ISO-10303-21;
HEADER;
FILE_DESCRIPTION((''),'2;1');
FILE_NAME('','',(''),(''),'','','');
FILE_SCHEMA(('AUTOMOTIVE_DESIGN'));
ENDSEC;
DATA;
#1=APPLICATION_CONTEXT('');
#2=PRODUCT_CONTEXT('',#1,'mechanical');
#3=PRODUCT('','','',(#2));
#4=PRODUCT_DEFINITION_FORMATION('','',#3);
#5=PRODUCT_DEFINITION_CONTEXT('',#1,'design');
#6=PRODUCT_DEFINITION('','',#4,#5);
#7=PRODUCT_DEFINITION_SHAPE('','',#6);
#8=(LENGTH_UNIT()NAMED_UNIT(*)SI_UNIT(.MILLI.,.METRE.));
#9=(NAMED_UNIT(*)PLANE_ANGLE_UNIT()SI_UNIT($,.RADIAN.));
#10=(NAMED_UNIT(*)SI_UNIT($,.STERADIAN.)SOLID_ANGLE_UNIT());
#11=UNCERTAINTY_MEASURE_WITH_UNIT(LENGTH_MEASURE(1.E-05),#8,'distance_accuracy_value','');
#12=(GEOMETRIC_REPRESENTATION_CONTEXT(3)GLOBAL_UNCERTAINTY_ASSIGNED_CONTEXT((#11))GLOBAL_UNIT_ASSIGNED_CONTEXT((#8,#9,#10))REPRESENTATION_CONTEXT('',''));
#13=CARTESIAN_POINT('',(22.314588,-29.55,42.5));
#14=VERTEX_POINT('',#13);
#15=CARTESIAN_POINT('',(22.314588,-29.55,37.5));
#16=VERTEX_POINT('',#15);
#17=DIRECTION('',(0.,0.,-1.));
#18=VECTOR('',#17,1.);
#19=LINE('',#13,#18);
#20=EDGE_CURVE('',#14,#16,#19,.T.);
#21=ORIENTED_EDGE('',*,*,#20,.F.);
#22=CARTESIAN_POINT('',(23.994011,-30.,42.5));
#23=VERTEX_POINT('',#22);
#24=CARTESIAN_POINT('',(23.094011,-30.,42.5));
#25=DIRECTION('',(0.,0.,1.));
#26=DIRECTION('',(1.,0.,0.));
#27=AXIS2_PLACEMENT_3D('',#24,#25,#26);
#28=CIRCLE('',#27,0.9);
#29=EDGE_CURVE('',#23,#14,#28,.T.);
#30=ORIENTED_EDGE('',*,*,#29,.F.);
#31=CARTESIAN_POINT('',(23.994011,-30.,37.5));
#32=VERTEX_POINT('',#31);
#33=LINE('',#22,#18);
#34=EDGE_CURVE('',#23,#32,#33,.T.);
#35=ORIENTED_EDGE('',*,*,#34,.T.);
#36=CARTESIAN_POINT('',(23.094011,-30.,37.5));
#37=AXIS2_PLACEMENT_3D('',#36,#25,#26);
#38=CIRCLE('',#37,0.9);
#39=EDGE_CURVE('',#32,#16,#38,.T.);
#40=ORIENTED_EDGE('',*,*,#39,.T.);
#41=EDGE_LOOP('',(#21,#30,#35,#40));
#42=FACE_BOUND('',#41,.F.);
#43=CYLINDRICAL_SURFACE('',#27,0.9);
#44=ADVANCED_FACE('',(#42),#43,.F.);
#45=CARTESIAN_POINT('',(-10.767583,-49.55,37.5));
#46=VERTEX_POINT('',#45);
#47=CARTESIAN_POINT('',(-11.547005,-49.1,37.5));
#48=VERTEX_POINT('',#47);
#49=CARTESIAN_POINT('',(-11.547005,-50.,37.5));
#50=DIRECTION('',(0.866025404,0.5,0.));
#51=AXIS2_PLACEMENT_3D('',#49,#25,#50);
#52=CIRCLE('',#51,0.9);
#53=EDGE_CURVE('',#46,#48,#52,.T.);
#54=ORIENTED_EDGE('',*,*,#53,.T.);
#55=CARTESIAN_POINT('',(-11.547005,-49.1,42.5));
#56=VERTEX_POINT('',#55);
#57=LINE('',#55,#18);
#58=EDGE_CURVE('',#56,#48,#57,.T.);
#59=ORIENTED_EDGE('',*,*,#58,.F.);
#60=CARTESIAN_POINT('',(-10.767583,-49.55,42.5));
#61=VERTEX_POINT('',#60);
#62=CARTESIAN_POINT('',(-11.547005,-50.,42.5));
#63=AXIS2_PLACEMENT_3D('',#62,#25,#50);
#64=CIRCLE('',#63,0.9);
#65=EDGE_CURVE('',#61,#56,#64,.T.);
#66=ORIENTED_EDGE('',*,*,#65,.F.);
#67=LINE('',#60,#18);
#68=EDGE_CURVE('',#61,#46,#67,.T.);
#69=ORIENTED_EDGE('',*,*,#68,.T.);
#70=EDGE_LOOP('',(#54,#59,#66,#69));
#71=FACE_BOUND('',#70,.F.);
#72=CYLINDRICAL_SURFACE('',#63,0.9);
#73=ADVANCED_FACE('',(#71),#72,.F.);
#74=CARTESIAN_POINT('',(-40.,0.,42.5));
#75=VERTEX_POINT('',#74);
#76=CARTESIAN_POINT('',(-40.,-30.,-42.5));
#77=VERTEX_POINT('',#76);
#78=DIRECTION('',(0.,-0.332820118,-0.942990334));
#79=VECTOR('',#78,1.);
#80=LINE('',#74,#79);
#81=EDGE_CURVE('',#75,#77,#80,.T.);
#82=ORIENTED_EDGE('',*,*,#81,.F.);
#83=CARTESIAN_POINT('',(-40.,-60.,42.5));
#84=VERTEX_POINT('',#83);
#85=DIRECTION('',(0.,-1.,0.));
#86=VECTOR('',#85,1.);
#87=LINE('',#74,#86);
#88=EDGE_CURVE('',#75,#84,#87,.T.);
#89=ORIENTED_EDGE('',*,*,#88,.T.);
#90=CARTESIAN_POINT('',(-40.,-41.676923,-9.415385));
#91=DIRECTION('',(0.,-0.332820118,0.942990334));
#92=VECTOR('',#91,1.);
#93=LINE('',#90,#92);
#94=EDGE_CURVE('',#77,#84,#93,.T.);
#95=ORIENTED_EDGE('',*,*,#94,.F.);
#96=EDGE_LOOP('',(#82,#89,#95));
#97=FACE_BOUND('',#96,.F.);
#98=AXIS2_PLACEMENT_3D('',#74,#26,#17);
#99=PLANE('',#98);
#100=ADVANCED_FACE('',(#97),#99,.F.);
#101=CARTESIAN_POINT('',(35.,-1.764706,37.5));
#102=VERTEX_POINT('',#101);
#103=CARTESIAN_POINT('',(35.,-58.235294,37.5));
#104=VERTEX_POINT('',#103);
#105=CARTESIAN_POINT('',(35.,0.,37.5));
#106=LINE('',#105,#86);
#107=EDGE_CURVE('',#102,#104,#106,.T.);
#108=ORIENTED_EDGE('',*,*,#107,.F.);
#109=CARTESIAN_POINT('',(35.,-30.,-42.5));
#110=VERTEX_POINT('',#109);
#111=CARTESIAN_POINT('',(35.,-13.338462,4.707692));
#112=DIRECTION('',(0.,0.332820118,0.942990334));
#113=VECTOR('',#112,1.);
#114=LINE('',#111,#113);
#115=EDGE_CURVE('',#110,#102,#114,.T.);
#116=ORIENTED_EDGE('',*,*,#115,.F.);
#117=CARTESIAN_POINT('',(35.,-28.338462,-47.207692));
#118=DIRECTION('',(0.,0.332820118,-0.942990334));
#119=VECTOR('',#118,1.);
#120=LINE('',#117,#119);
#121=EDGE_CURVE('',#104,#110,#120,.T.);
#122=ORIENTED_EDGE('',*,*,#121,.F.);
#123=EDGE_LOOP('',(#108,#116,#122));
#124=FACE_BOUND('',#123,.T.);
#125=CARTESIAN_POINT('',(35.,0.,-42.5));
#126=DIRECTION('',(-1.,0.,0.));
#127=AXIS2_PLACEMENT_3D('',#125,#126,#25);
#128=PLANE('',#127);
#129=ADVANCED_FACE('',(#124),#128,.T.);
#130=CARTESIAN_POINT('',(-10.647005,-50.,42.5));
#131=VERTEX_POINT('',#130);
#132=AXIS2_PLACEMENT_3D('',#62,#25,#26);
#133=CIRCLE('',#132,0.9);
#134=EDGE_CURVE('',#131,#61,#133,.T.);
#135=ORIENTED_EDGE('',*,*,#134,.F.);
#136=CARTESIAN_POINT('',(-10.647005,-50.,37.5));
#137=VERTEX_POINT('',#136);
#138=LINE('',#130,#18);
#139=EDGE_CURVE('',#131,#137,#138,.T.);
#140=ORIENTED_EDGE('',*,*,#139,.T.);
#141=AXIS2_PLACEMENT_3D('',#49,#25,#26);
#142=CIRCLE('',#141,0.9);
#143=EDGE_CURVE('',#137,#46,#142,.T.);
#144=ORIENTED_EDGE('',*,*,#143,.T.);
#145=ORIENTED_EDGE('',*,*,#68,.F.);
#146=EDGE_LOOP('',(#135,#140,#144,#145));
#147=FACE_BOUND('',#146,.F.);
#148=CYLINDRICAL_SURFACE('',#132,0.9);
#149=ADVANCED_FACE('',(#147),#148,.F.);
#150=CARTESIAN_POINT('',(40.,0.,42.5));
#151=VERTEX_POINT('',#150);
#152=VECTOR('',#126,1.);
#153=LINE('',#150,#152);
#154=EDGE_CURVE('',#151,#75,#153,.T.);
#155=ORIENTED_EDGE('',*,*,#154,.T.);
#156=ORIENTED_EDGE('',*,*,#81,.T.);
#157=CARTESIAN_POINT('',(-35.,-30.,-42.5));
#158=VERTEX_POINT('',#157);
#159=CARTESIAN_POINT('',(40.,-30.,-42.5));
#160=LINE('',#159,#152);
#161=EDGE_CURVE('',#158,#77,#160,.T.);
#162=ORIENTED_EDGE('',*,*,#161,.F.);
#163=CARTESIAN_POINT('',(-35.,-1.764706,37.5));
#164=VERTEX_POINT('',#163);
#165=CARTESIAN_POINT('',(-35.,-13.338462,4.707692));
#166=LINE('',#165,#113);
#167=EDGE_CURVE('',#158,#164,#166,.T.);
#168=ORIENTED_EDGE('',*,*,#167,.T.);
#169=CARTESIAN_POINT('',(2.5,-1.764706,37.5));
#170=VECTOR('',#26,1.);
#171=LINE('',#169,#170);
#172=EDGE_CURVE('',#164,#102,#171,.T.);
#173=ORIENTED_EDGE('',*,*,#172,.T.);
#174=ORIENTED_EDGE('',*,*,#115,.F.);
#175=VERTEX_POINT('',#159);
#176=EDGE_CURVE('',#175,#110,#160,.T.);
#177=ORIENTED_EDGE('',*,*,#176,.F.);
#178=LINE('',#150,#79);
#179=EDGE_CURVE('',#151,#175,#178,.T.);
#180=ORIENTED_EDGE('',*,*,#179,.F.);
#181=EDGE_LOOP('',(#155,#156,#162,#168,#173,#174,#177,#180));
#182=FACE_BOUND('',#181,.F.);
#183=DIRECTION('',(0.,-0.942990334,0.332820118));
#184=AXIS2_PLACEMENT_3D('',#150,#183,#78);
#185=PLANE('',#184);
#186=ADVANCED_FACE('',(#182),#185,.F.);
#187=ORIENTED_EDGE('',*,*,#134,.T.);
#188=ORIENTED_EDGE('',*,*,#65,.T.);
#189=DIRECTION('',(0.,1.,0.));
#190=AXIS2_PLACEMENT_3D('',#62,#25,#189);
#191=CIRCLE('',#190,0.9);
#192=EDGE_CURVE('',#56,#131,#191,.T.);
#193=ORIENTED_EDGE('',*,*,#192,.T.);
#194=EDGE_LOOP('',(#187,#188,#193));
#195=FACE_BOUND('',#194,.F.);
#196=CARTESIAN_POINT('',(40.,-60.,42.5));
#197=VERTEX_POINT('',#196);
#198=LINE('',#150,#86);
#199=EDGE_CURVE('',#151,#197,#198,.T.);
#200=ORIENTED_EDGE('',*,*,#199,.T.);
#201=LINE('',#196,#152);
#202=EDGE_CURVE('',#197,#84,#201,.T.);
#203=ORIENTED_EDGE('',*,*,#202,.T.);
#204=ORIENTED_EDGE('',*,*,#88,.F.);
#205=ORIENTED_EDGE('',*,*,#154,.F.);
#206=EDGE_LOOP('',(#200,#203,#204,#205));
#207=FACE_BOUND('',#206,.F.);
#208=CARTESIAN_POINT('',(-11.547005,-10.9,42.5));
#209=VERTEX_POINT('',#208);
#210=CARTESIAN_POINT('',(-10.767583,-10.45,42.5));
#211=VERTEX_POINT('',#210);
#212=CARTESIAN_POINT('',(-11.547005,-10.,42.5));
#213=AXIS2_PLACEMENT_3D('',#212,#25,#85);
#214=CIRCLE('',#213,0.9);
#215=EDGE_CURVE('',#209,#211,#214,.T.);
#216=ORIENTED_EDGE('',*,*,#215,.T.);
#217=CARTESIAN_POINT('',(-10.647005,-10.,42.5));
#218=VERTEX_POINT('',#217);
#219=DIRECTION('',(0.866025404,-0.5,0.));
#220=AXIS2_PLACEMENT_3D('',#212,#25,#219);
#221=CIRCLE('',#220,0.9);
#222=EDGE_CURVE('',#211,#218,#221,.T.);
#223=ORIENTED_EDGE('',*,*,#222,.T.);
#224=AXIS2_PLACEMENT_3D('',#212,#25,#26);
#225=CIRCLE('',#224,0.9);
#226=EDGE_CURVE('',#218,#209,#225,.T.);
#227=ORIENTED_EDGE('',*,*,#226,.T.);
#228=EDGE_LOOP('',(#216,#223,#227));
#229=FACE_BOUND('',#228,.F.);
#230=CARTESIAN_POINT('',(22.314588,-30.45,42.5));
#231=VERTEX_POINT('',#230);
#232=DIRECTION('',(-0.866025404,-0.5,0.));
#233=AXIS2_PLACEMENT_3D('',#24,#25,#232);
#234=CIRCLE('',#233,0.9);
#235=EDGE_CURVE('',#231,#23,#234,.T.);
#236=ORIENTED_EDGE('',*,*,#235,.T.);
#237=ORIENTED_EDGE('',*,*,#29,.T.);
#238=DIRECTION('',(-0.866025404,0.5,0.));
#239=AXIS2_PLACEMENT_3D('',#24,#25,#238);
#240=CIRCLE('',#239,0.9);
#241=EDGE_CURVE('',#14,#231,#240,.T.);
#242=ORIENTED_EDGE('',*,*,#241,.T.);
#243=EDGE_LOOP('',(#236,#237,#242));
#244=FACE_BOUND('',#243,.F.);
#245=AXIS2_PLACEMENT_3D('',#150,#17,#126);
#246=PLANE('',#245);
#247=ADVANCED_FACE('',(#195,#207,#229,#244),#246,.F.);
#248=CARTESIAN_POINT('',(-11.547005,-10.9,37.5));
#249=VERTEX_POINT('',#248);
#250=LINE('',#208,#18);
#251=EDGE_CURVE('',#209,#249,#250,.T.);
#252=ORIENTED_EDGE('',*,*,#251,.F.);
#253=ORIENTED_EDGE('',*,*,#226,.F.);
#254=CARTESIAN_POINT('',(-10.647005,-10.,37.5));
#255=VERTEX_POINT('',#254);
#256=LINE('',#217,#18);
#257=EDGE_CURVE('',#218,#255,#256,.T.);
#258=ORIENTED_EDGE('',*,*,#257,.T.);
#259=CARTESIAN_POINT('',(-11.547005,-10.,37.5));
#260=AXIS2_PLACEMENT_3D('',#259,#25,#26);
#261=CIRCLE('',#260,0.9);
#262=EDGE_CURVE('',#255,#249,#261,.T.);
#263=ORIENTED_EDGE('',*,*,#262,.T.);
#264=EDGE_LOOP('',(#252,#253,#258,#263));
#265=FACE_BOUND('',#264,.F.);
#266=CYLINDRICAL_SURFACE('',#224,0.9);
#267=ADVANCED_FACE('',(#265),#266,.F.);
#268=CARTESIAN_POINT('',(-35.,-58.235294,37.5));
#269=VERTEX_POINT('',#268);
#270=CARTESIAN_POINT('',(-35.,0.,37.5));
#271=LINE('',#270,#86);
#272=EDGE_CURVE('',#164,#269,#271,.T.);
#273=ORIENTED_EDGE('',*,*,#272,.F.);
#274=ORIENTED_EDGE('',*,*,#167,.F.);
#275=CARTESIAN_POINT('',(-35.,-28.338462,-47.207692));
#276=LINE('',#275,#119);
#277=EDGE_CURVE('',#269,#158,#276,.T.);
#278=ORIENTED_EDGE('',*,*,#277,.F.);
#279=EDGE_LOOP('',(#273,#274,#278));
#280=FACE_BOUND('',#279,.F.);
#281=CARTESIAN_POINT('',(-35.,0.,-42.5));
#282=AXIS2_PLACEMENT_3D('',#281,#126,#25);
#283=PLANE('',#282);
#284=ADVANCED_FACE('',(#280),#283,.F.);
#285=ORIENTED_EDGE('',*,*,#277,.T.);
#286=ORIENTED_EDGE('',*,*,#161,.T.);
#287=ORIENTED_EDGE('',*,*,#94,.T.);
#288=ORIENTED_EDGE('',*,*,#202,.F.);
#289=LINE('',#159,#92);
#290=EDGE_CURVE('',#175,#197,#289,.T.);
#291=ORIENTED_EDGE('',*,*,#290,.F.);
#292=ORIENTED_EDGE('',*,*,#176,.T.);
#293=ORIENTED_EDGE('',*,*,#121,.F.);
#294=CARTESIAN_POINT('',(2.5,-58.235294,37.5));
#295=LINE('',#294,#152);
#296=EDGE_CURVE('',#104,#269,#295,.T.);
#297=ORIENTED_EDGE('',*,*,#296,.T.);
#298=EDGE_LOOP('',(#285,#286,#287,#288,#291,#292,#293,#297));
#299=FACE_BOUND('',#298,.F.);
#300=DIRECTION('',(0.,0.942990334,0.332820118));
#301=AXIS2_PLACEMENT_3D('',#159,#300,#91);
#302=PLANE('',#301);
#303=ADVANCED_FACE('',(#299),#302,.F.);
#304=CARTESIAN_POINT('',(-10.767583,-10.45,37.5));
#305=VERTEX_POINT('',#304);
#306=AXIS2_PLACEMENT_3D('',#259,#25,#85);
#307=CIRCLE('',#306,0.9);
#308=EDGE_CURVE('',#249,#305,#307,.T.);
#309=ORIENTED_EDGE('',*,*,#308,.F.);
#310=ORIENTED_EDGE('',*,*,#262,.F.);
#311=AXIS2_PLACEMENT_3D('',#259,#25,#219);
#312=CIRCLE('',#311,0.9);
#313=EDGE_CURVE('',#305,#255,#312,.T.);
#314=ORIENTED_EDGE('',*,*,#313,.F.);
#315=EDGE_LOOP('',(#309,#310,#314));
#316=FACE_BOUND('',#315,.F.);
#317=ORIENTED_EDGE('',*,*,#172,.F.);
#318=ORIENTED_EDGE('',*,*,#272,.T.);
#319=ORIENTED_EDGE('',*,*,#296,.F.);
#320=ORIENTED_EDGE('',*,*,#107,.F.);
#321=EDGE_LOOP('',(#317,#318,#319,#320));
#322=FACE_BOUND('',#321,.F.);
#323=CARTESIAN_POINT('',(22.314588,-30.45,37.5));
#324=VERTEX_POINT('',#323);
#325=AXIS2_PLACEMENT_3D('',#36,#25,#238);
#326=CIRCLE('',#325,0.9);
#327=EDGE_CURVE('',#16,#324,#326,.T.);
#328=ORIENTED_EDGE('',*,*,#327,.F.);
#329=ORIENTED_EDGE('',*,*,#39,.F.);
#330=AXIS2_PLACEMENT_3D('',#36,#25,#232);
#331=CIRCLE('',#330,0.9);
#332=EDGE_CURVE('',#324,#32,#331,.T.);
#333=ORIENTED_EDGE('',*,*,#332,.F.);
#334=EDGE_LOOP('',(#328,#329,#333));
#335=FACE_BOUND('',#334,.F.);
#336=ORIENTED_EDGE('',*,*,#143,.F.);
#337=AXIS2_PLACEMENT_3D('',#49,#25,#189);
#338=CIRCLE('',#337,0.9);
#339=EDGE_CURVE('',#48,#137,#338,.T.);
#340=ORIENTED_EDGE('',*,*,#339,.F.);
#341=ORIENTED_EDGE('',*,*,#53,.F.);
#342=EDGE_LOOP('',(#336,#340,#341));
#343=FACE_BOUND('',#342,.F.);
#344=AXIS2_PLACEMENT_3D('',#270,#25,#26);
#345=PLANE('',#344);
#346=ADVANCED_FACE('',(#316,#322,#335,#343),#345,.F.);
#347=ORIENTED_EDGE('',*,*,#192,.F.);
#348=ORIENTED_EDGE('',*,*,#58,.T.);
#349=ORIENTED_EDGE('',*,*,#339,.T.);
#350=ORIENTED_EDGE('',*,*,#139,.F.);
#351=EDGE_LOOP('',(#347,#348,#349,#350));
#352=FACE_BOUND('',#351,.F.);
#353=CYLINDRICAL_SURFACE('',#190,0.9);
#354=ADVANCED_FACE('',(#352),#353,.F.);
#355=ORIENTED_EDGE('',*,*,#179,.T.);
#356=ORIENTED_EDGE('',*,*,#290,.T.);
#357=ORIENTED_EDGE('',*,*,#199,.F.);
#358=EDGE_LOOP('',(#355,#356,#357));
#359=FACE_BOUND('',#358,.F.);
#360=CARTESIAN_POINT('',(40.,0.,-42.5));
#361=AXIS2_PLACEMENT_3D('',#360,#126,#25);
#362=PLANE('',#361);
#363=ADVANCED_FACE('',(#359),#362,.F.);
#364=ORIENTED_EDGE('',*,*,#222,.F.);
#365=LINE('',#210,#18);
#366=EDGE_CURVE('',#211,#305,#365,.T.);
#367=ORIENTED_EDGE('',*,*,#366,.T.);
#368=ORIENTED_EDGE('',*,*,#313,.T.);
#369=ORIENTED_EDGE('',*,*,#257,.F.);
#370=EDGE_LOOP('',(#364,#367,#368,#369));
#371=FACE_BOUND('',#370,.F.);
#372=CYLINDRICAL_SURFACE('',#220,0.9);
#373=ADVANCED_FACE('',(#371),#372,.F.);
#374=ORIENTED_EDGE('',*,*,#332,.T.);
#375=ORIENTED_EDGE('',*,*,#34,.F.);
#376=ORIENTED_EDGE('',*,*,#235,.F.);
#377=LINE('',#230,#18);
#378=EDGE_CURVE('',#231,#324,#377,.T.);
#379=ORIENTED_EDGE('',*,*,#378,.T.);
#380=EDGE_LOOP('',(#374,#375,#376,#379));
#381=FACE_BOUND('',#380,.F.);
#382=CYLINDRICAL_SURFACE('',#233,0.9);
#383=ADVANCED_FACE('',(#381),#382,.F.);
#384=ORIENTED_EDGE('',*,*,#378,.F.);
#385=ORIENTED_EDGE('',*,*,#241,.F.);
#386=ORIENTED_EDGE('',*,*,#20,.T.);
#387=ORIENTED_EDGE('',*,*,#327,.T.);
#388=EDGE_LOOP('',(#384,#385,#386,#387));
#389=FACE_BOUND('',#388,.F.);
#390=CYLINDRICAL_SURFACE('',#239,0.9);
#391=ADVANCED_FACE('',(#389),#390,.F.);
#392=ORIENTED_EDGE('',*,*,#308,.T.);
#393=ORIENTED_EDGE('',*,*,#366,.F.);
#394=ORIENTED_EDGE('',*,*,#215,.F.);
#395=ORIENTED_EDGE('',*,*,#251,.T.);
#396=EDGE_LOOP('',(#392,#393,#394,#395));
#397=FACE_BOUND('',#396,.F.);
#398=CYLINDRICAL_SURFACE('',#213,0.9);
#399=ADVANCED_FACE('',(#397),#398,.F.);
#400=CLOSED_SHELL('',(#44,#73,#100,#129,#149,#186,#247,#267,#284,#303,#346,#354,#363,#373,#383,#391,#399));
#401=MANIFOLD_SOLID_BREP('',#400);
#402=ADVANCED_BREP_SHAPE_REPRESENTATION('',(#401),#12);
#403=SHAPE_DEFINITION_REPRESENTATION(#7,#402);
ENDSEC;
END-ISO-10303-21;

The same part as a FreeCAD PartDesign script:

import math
import FreeCAD as App
import Part
import Sketcher
Q = App.Units.Quantity

doc = App.newDocument("Part")
body = doc.addObject("PartDesign::Body", "Body")

sketch1 = body.newObject("Sketcher::SketchObject", "Sketch")
sketch1.AttachmentSupport = (doc.getObject("XZ_Plane"), [""])
sketch1.MapMode = "FlatFace"
sketch1.addGeometry([
    Part.LineSegment(App.Vector(-40, -42, 0), App.Vector(-35, -42, 0)),
    Part.LineSegment(App.Vector(-35, -42, 0), App.Vector(-35, 38, 0)),
    Part.LineSegment(App.Vector(-35, 38, 0), App.Vector(35, 38, 0)),
    Part.LineSegment(App.Vector(35, 38, 0), App.Vector(35, -42, 0)),
    Part.LineSegment(App.Vector(35, -42, 0), App.Vector(40, -42, 0)),
    Part.LineSegment(App.Vector(40, -42, 0), App.Vector(40, 42, 0)),
    Part.LineSegment(App.Vector(40, 42, 0), App.Vector(-40, 42, 0)),
    Part.LineSegment(App.Vector(-40, 42, 0), App.Vector(-40, -42, 0)),
], False)
sketch1.addConstraint([
    Sketcher.Constraint("Coincident", 0, 2, 1, 1),
    Sketcher.Constraint("Coincident", 1, 2, 2, 1),
    Sketcher.Constraint("Coincident", 2, 2, 3, 1),
    Sketcher.Constraint("Coincident", 3, 2, 4, 1),
    Sketcher.Constraint("Coincident", 4, 2, 5, 1),
    Sketcher.Constraint("Coincident", 5, 2, 6, 1),
    Sketcher.Constraint("Coincident", 6, 2, 7, 1),
    Sketcher.Constraint("Coincident", 7, 2, 0, 1),
    Sketcher.Constraint("Horizontal", 0),
    Sketcher.Constraint("Vertical", 1),
    Sketcher.Constraint("Horizontal", 2),
    Sketcher.Constraint("Vertical", 3),
    Sketcher.Constraint("Horizontal", 4),
    Sketcher.Constraint("Vertical", 5),
    Sketcher.Constraint("Horizontal", 6),
    Sketcher.Constraint("Vertical", 7),
    Sketcher.Constraint("Symmetric", 4, 2, 6, 2, -1, 1),
    Sketcher.Constraint("Symmetric", 0, 2, 3, 2, -2),
    Sketcher.Constraint("Equal", 6, 1),
    Sketcher.Constraint("DistanceX", 0, 1, 0, 2, Q("5 mm")),
    Sketcher.Constraint("DistanceX", 2, 1, 2, 2, Q("70 mm")),
    Sketcher.Constraint("DistanceY", 5, 1, 5, 2, Q("85 mm")),
])
pad1 = body.newObject("PartDesign::Pad", "Pad")
pad1.Profile = sketch1
pad1.Length = 60

sketch2 = body.newObject("Sketcher::SketchObject", "Sketch001")
sketch2.AttachmentSupport = (doc.getObject("XY_Plane"), [""])
sketch2.MapMode = "FlatFace"
sketch2.AttachmentOffset = App.Placement(App.Vector(0, 0, 42.5), App.Rotation())
sketch2.addGeometry([
    Part.ArcOfCircle(Part.Circle(App.Vector(23.09, -30, 0), App.Vector(0, 0, 1), 0.9), math.radians(-150), math.radians(0)),
    Part.ArcOfCircle(Part.Circle(App.Vector(23.09, -30, 0), App.Vector(0, 0, 1), 0.9), math.radians(0), math.radians(150)),
    Part.ArcOfCircle(Part.Circle(App.Vector(23.09, -30, 0), App.Vector(0, 0, 1), 0.9), math.radians(150), math.radians(210)),
    Part.ArcOfCircle(Part.Circle(App.Vector(-11.55, -10, 0), App.Vector(0, 0, 1), 0.9), math.radians(-90), math.radians(-30)),
    Part.ArcOfCircle(Part.Circle(App.Vector(-11.55, -10, 0), App.Vector(0, 0, 1), 0.9), math.radians(-30), math.radians(0)),
    Part.ArcOfCircle(Part.Circle(App.Vector(-11.55, -10, 0), App.Vector(0, 0, 1), 0.9), math.radians(0), math.radians(270)),
    Part.ArcOfCircle(Part.Circle(App.Vector(-11.55, -50, 0), App.Vector(0, 0, 1), 0.9), math.radians(30), math.radians(90)),
    Part.ArcOfCircle(Part.Circle(App.Vector(-11.55, -50, 0), App.Vector(0, 0, 1), 0.9), math.radians(90), math.radians(360)),
    Part.ArcOfCircle(Part.Circle(App.Vector(-11.55, -50, 0), App.Vector(0, 0, 1), 0.9), math.radians(0), math.radians(30)),
], False)
sketch2.addConstraint([
    Sketcher.Constraint("Tangent", 0, 2, 1, 1),
    Sketcher.Constraint("Tangent", 1, 2, 2, 1),
    Sketcher.Constraint("Tangent", 2, 2, 0, 1),
    Sketcher.Constraint("Tangent", 3, 2, 4, 1),
    Sketcher.Constraint("Tangent", 4, 2, 5, 1),
    Sketcher.Constraint("Tangent", 5, 2, 3, 1),
    Sketcher.Constraint("Tangent", 6, 2, 7, 1),
    Sketcher.Constraint("Tangent", 7, 2, 8, 1),
    Sketcher.Constraint("Tangent", 8, 2, 6, 1),
    Sketcher.Constraint("Equal", 2, 3),
    Sketcher.Constraint("Equal", 5, 6),
    Sketcher.Constraint("Horizontal", 2, 3, 0, 2),
    Sketcher.Constraint("Horizontal", 5, 3, 4, 2),
    Sketcher.Constraint("Horizontal", 8, 3, 7, 2),
    Sketcher.Constraint("Vertical", 5, 3, 6, 3),
    Sketcher.Constraint("Vertical", 1, 2, 2, 2),
    Sketcher.Constraint("Vertical", 8, 3, 5, 2),
    Sketcher.Constraint("Vertical", 5, 2, 6, 2),
    Sketcher.Constraint("Vertical", 3, 2, 8, 2),
    Sketcher.Constraint("Radius", 0, Q("0.9 mm")),
    Sketcher.Constraint("DistanceY", 0, 3, -1, 1, Q("30 mm")),
    Sketcher.Constraint("DistanceY", 3, 3, -1, 1, Q("10 mm")),
    Sketcher.Constraint("DistanceY", 6, 3, -1, 1, Q("50 mm")),
    Sketcher.Constraint("DistanceY", 2, 2, 3, 2, Q("20 mm")),
    Sketcher.Constraint("DistanceY", 2, 2, 1, 2, Q("0.9 mm")),
    Sketcher.Constraint("DistanceX", -1, 1, 0, 3, Q("23.094011 mm")),
    Sketcher.Constraint("DistanceX", 3, 2, 1, 2, Q("33.08217 mm")),
])
pocket1 = body.newObject("PartDesign::Pocket", "Pocket")
pocket1.Profile = sketch2
pocket1.Type = "ThroughAll"

sketch3 = body.newObject("Sketcher::SketchObject", "Sketch002")
sketch3.AttachmentSupport = (doc.getObject("YZ_Plane"), [""])
sketch3.MapMode = "FlatFace"
sketch3.AttachmentOffset = App.Placement(App.Vector(0, 0, 40), App.Rotation())
sketch3.addGeometry([
    Part.LineSegment(App.Vector(-60, -42, 0), App.Vector(-30, -42, 0)),
    Part.LineSegment(App.Vector(-30, -42, 0), App.Vector(-60, 42, 0)),
    Part.LineSegment(App.Vector(-60, 42, 0), App.Vector(-60, -42, 0)),
    Part.LineSegment(App.Vector(0, 42, 0), App.Vector(-30, -42, 0)),
    Part.LineSegment(App.Vector(-30, -42, 0), App.Vector(0, -42, 0)),
    Part.LineSegment(App.Vector(0, -42, 0), App.Vector(0, 42, 0)),
], False)
sketch3.addConstraint([
    Sketcher.Constraint("Coincident", 0, 2, 1, 1),
    Sketcher.Constraint("Coincident", 1, 2, 2, 1),
    Sketcher.Constraint("Coincident", 2, 2, 0, 1),
    Sketcher.Constraint("Coincident", 3, 2, 4, 1),
    Sketcher.Constraint("Coincident", 4, 2, 5, 1),
    Sketcher.Constraint("Coincident", 5, 2, 3, 1),
    Sketcher.Constraint("Horizontal", 0),
    Sketcher.Constraint("Vertical", 2),
    Sketcher.Constraint("Horizontal", 4),
    Sketcher.Constraint("Vertical", 5),
    Sketcher.Constraint("Coincident", 3, 2, 0, 2),
    Sketcher.Constraint("Symmetric", 4, 2, 5, 2, -1, 1),
    Sketcher.Constraint("Horizontal", 1, 2, 5, 2),
    Sketcher.Constraint("Equal", 0, 4),
    Sketcher.Constraint("DistanceX", 0, 1, 0, 2, Q("30 mm")),
    Sketcher.Constraint("DistanceY", 2, 2, 2, 1, Q("85 mm")),
])
pocket2 = body.newObject("PartDesign::Pocket", "Pocket001")
pocket2.Profile = sketch3
pocket2.Type = "ThroughAll"

doc.recompute()
